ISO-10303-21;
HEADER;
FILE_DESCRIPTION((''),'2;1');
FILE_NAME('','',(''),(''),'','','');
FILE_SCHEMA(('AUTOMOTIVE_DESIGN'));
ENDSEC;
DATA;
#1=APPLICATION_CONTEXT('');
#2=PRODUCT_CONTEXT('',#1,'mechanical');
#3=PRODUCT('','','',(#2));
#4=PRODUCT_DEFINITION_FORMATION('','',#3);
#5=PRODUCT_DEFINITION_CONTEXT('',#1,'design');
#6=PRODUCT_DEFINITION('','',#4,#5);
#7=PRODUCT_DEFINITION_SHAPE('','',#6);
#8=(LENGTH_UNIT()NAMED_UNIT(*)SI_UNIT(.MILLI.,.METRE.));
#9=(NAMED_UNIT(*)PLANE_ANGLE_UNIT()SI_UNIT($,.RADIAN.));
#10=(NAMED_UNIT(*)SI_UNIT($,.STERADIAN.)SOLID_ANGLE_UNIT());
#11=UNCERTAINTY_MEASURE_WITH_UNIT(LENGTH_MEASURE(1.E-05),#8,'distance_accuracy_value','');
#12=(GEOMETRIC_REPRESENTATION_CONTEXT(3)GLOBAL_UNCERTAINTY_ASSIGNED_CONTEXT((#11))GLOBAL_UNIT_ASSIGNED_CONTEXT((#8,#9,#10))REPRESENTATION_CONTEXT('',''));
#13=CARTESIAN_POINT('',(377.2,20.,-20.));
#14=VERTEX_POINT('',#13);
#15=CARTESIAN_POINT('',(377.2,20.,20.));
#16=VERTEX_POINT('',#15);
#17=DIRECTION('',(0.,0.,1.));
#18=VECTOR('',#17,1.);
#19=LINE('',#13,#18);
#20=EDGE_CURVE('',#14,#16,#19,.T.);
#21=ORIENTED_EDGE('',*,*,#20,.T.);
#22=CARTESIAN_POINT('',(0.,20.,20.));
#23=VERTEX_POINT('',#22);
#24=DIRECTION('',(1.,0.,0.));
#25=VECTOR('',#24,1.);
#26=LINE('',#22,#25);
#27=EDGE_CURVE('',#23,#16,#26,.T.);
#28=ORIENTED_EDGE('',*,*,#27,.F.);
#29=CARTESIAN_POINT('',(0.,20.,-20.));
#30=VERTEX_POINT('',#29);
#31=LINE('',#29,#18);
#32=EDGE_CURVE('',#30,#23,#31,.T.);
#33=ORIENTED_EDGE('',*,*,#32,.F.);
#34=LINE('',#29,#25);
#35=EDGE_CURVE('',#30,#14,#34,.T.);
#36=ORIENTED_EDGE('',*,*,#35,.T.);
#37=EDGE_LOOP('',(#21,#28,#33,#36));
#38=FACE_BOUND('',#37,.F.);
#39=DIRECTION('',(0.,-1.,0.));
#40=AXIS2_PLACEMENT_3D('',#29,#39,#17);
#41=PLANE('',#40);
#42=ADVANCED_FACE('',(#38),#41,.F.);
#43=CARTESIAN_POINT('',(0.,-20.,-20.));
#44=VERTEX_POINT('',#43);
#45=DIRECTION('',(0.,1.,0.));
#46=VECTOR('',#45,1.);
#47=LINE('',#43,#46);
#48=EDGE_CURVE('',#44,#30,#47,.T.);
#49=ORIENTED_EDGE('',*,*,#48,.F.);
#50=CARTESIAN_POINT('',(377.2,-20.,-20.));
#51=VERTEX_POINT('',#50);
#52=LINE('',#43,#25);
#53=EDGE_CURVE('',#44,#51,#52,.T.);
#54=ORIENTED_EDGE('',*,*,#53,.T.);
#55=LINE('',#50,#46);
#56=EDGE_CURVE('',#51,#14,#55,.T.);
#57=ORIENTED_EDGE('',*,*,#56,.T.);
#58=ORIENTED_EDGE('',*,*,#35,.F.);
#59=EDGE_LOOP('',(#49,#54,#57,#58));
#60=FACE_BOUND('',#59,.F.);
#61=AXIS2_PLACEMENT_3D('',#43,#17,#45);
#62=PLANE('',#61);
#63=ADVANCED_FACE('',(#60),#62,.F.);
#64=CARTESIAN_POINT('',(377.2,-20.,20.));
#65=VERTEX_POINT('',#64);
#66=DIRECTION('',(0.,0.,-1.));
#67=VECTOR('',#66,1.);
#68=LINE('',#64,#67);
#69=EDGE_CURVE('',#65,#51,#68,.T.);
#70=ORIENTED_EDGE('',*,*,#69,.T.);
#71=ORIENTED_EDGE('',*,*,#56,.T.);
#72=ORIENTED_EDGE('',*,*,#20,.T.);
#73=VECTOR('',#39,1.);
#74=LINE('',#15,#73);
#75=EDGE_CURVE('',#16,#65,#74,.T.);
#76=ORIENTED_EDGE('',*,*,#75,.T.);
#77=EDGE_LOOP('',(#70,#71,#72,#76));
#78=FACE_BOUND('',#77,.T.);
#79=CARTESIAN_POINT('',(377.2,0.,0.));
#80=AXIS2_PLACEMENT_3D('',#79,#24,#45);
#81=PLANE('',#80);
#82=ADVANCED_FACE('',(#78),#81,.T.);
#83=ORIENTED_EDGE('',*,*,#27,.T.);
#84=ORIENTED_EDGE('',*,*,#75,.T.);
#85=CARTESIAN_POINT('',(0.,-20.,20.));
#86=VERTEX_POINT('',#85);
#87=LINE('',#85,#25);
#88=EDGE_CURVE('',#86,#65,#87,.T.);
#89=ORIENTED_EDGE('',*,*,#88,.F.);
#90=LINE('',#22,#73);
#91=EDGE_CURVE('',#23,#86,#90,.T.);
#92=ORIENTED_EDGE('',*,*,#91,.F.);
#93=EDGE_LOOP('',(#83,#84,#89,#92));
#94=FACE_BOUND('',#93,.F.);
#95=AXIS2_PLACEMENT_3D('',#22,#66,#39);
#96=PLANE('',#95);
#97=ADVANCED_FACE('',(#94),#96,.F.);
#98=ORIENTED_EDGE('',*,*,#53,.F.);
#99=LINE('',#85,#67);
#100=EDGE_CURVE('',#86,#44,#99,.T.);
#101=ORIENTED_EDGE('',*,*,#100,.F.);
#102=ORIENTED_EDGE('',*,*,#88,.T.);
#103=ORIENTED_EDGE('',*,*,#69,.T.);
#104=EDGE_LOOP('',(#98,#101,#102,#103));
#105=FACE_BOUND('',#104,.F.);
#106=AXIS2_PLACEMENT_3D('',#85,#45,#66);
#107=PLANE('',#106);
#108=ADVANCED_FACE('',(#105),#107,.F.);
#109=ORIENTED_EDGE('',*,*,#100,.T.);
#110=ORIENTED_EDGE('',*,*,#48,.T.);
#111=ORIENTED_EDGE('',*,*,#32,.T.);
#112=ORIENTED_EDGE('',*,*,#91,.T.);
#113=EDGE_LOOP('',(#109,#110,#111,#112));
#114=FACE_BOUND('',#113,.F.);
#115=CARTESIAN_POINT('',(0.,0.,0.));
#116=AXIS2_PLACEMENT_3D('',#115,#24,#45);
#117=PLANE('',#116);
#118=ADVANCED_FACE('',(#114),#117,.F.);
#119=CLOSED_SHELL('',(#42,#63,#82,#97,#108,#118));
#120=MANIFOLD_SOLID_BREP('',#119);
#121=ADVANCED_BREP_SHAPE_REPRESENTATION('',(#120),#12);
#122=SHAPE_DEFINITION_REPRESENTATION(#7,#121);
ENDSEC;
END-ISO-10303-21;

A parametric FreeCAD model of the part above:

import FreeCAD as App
import Part
import Sketcher

V = App.Vector

doc = App.newDocument("Part")
body = doc.addObject("PartDesign::Body", "Body")

# Sketch on YZ plane
sketch1 = body.newObject("Sketcher::SketchObject", "Sketch")
sketch1.AttachmentSupport = (doc.getObject("YZ_Plane"), [""])
sketch1.MapMode = "FlatFace"
sketch1.addGeometry([
    Part.LineSegment(V(20, -20, 0), V(20, 20, 0)),
    Part.LineSegment(V(20, 20, 0), V(-20, 20, 0)),
    Part.LineSegment(V(-20, 20, 0), V(-20, -20, 0)),
    Part.LineSegment(V(-20, -20, 0), V(20, -20, 0)),
], False)
sketch1.addConstraint([
    Sketcher.Constraint("Coincident", 0, 2, 1, 1),
    Sketcher.Constraint("Coincident", 1, 2, 2, 1),
    Sketcher.Constraint("Coincident", 2, 2, 3, 1),
    Sketcher.Constraint("Coincident", 3, 2, 0, 1),
    Sketcher.Constraint("Vertical", 0),
    Sketcher.Constraint("Horizontal", 1),
    Sketcher.Constraint("Vertical", 2),
    Sketcher.Constraint("Horizontal", 3),
    Sketcher.Constraint("Symmetric", 0, 2, 2, 2, -1, 1),
    Sketcher.Constraint("Equal", 3, 0),
    Sketcher.Constraint("DistanceX", 1, 2, 1, 1, 40.0),
])
pad1 = body.newObject("PartDesign::Pad", "Pad")
pad1.Profile = sketch1
pad1.Length = 377.2

doc.recompute()
